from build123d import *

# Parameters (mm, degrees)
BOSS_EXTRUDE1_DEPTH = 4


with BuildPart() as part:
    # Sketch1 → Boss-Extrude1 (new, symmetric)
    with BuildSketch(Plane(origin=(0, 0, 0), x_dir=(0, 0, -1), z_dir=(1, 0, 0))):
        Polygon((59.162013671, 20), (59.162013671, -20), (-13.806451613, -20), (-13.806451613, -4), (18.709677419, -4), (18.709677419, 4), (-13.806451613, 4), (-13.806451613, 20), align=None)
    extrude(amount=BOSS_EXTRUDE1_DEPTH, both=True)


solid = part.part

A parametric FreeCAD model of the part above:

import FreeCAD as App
import Part
import Sketcher
from FreeCAD import Vector

doc = App.newDocument("Part")
body = doc.addObject("PartDesign::Body", "Body")

sketch1 = body.newObject("Sketcher::SketchObject", "Sketch")
sketch1.AttachmentSupport = (doc.getObject("YZ_Plane"), [""])
sketch1.MapMode = "FlatFace"
sketch1.addGeometry([
    Part.LineSegment(Vector(-20, -59.162014, 0), Vector(20, -59.162014, 0)),
    Part.LineSegment(Vector(20, -59.162014, 0), Vector(20, 13.806452, 0)),
    Part.LineSegment(Vector(20, 13.806452, 0), Vector(4, 13.806452, 0)),
    Part.LineSegment(Vector(4, 13.806452, 0), Vector(4, -18.709677, 0)),
    Part.LineSegment(Vector(4, -18.709677, 0), Vector(-4, -18.709677, 0)),
    Part.LineSegment(Vector(-4, -18.709677, 0), Vector(-4, 13.806452, 0)),
    Part.LineSegment(Vector(-4, 13.806452, 0), Vector(-20, 13.806452, 0)),
    Part.LineSegment(Vector(-20, 13.806452, 0), Vector(-20, -59.162014, 0)),
], False)
sketch1.addConstraint([
    Sketcher.Constraint("Coincident", 0, 2, 1, 1),
    Sketcher.Constraint("Coincident", 1, 2, 2, 1),
    Sketcher.Constraint("Coincident", 2, 2, 3, 1),
    Sketcher.Constraint("Coincident", 3, 2, 4, 1),
    Sketcher.Constraint("Coincident", 4, 2, 5, 1),
    Sketcher.Constraint("Coincident", 5, 2, 6, 1),
    Sketcher.Constraint("Coincident", 6, 2, 7, 1),
    Sketcher.Constraint("Coincident", 7, 2, 0, 1),
    Sketcher.Constraint("Horizontal", 0),
    Sketcher.Constraint("Vertical", 1),
    Sketcher.Constraint("Horizontal", 2),
    Sketcher.Constraint("Vertical", 3),
    Sketcher.Constraint("Horizontal", 4),
    Sketcher.Constraint("Vertical", 5),
    Sketcher.Constraint("Horizontal", 6),
    Sketcher.Constraint("Vertical", 7),
    Sketcher.Constraint("Symmetric", 2, 2, 5, 2, -2),
    Sketcher.Constraint("Equal", 2, 6),
    Sketcher.Constraint("DistanceX", 0, 1, 0, 2, 40.0),
    Sketcher.Constraint("DistanceX", 2, 2, 2, 1, 16.0),
    Sketcher.Constraint("DistanceY", 3, 2, 3, 1, 32.516129),
    Sketcher.Constraint("DistanceY", 1, 1, 1, 2, 72.968465),
    Sketcher.Constraint("DistanceY", -1, 1, 1, 2, 13.806452),
])
pad1 = body.newObject("PartDesign::Pad", "Pad")
pad1.Profile = sketch1
pad1.Length = 8
pad1.Midplane = True

doc.recompute()
